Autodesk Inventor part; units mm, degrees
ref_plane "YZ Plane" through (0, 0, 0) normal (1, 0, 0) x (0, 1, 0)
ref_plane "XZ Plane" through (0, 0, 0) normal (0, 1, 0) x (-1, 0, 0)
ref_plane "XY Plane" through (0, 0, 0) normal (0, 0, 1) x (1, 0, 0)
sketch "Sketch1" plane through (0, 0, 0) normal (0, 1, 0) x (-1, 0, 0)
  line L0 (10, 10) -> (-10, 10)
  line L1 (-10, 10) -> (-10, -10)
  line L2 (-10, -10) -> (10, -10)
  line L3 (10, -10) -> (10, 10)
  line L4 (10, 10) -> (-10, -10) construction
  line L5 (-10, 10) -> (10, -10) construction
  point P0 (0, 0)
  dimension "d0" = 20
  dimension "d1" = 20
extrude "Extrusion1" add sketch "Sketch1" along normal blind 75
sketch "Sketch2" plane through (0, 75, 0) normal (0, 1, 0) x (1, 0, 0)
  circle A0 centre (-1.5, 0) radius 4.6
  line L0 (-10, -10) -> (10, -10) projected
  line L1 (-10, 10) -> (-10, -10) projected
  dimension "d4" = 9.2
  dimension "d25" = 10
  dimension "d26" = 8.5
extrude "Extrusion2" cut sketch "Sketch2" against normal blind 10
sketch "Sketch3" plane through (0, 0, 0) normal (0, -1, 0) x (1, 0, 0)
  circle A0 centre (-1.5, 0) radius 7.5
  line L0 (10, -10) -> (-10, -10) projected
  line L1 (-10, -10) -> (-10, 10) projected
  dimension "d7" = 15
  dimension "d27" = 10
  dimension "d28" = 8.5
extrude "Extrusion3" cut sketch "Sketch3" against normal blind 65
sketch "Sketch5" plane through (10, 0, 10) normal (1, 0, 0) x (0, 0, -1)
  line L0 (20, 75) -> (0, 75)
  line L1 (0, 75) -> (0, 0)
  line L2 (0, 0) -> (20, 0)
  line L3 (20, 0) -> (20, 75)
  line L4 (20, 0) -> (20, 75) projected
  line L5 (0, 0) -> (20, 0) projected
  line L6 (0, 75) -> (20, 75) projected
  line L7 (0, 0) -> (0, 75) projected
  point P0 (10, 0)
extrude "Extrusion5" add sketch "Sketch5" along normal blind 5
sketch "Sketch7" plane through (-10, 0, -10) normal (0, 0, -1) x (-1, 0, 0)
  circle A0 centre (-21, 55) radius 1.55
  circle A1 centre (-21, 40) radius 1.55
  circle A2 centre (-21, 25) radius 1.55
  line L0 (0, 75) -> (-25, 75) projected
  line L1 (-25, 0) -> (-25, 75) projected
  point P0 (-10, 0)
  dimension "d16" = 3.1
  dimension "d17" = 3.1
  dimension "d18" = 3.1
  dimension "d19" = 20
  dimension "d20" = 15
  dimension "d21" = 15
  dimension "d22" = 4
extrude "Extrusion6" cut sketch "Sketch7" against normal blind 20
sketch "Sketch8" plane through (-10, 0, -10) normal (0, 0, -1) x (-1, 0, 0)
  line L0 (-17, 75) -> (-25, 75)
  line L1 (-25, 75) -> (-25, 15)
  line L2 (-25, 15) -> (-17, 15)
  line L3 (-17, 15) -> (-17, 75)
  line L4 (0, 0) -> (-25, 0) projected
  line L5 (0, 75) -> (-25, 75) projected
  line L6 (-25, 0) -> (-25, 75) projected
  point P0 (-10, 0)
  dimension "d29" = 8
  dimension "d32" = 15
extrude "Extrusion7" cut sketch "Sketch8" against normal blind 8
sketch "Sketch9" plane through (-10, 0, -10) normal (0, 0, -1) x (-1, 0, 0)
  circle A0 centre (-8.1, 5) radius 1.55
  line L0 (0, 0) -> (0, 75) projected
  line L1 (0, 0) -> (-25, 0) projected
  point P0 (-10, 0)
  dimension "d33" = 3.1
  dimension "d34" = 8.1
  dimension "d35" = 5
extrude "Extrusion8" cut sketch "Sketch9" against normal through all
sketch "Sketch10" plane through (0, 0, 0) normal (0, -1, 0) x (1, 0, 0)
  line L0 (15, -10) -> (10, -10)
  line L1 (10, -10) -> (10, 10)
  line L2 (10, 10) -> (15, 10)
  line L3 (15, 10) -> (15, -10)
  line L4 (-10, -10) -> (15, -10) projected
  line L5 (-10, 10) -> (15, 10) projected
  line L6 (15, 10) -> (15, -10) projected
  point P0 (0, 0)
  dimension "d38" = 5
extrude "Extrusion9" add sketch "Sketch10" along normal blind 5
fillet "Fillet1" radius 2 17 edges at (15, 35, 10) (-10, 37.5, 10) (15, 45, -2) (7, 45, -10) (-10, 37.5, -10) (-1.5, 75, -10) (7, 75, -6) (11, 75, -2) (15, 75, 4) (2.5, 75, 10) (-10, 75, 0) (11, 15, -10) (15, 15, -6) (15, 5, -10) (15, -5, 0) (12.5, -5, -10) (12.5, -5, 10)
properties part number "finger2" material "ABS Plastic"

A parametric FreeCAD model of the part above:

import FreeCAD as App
import Part
import Sketcher


def edges_at(feature, points):
    """Names of the edges that pass closest to the given points."""
    edges = feature.Shape.Edges
    near = lambda p: min(range(len(edges)), key=lambda i: edges[i].distToShape(Part.Vertex(*p))[0])
    return sorted({f"Edge{near(p) + 1}" for p in points})

doc = App.newDocument("Part")
body = doc.addObject("PartDesign::Body", "Body")

sketch1 = doc.addObject("Sketcher::SketchObject", "Sketch")
body.addObject(sketch1)
sketch1.AttachmentSupport = (doc.XZ_Plane, [""])
sketch1.MapMode = "FlatFace"
sketch1.addGeometry(Part.LineSegment(App.Vector(-10, -10, 0), App.Vector(-10, 10, 0)), False)
sketch1.addGeometry(Part.LineSegment(App.Vector(-10, 10, 0), App.Vector(10, 10, 0)), False)
sketch1.addGeometry(Part.LineSegment(App.Vector(10, 10, 0), App.Vector(10, -10, 0)), False)
sketch1.addGeometry(Part.LineSegment(App.Vector(10, -10, 0), App.Vector(-10, -10, 0)), False)
sketch1.addConstraint(Sketcher.Constraint("Coincident", 0, 2, 1, 1))
sketch1.addConstraint(Sketcher.Constraint("Coincident", 1, 2, 2, 1))
sketch1.addConstraint(Sketcher.Constraint("Coincident", 2, 2, 3, 1))
sketch1.addConstraint(Sketcher.Constraint("Coincident", 3, 2, 0, 1))
sketch1.addConstraint(Sketcher.Constraint("Vertical", 0))
sketch1.addConstraint(Sketcher.Constraint("Horizontal", 1))
sketch1.addConstraint(Sketcher.Constraint("Vertical", 2))
sketch1.addConstraint(Sketcher.Constraint("Horizontal", 3))
sketch1.addConstraint(Sketcher.Constraint("Symmetric", 0, 2, 2, 2, -1, 1))
sketch1.addConstraint(Sketcher.Constraint("Equal", 3, 0))
sketch1.addConstraint(Sketcher.Constraint("DistanceX", 1, 1, 1, 2, 20.0))
pad1 = doc.addObject("PartDesign::Pad", "Pad")
body.addObject(pad1)
pad1.Profile = sketch1
pad1.Length = 75
pad1.Reversed = True

sketch2 = doc.addObject("Sketcher::SketchObject", "Sketch001")
body.addObject(sketch2)
sketch2.AttachmentSupport = (doc.XZ_Plane, [""])
sketch2.MapMode = "FlatFace"
sketch2.AttachmentOffset = App.Placement(App.Vector(0, 0, -75), App.Rotation())
sketch2.addGeometry(Part.Circle(App.Vector(-1.5, 0, 0), App.Vector(0, 0, 1), 4.6), False)
sketch2.addConstraint(Sketcher.Constraint("PointOnObject", 0, 3, -1))
sketch2.addConstraint(Sketcher.Constraint("Diameter", 0, 9.2))
sketch2.addConstraint(Sketcher.Constraint("DistanceX", 0, 3, -1, 1, 1.5))
pocket1 = doc.addObject("PartDesign::Pocket", "Pocket")
body.addObject(pocket1)
pocket1.Profile = sketch2
pocket1.Length = 10
pocket1.Reversed = True

sketch3 = doc.addObject("Sketcher::SketchObject", "Sketch002")
body.addObject(sketch3)
sketch3.AttachmentSupport = (doc.XZ_Plane, [""])
sketch3.MapMode = "FlatFace"
sketch3.addGeometry(Part.Circle(App.Vector(-1.5, 0, 0), App.Vector(0, 0, 1), 7.5), False)
sketch3.addConstraint(Sketcher.Constraint("PointOnObject", 0, 3, -1))
sketch3.addConstraint(Sketcher.Constraint("Diameter", 0, 15.0))
sketch3.addConstraint(Sketcher.Constraint("DistanceX", 0, 3, -1, 1, 1.5))
pocket2 = doc.addObject("PartDesign::Pocket", "Pocket001")
body.addObject(pocket2)
pocket2.Profile = sketch3
pocket2.Length = 65

sketch4 = doc.addObject("Sketcher::SketchObject", "Sketch003")
body.addObject(sketch4)
sketch4.AttachmentSupport = (doc.YZ_Plane, [""])
sketch4.MapMode = "FlatFace"
sketch4.AttachmentOffset = App.Placement(App.Vector(0, 0, 10), App.Rotation())
sketch4.addGeometry(Part.LineSegment(App.Vector(0, -10, 0), App.Vector(75, -10, 0)), False)
sketch4.addGeometry(Part.LineSegment(App.Vector(75, -10, 0), App.Vector(75, 10, 0)), False)
sketch4.addGeometry(Part.LineSegment(App.Vector(75, 10, 0), App.Vector(0, 10, 0)), False)
sketch4.addGeometry(Part.LineSegment(App.Vector(0, 10, 0), App.Vector(0, -10, 0)), False)
sketch4.addConstraint(Sketcher.Constraint("Coincident", 0, 2, 1, 1))
sketch4.addConstraint(Sketcher.Constraint("Coincident", 1, 2, 2, 1))
sketch4.addConstraint(Sketcher.Constraint("Coincident", 2, 2, 3, 1))
sketch4.addConstraint(Sketcher.Constraint("Coincident", 3, 2, 0, 1))
sketch4.addConstraint(Sketcher.Constraint("Horizontal", 0))
sketch4.addConstraint(Sketcher.Constraint("Vertical", 1))
sketch4.addConstraint(Sketcher.Constraint("Horizontal", 2))
sketch4.addConstraint(Sketcher.Constraint("Vertical", 3))
sketch4.addConstraint(Sketcher.Constraint("Symmetric", 2, 2, 3, 2, -1, 1))
sketch4.addConstraint(Sketcher.Constraint("DistanceX", 0, 1, 0, 2, 75.0))
sketch4.addConstraint(Sketcher.Constraint("DistanceY", 1, 1, 1, 2, 20.0))
pad2 = doc.addObject("PartDesign::Pad", "Pad001")
body.addObject(pad2)
pad2.Profile = sketch4
pad2.Length = 5

sketch5 = doc.addObject("Sketcher::SketchObject", "Sketch004")
body.addObject(sketch5)
sketch5.AttachmentSupport = (doc.XY_Plane, [""])
sketch5.MapMode = "FlatFace"
sketch5.AttachmentOffset = App.Placement(App.Vector(0, 0, -10), App.Rotation())
sketch5.addGeometry(Part.Circle(App.Vector(11, 55, 0), App.Vector(0, 0, 1), 1.55), False)
sketch5.addGeometry(Part.Circle(App.Vector(11, 40, 0), App.Vector(0, 0, 1), 1.55), False)
sketch5.addGeometry(Part.Circle(App.Vector(11, 25, 0), App.Vector(0, 0, 1), 1.55), False)
sketch5.addConstraint(Sketcher.Constraint("Equal", 0, 1))
sketch5.addConstraint(Sketcher.Constraint("Equal", 1, 2))
sketch5.addConstraint(Sketcher.Constraint("Vertical", 0, 3, 1, 3))
sketch5.addConstraint(Sketcher.Constraint("Vertical", 1, 3, 2, 3))
sketch5.addConstraint(Sketcher.Constraint("Diameter", 0, 3.1))
sketch5.addConstraint(Sketcher.Constraint("DistanceY", 1, 3, 0, 3, 15.0))
sketch5.addConstraint(Sketcher.Constraint("DistanceY", 2, 3, 1, 3, 15.0))
sketch5.addConstraint(Sketcher.Constraint("DistanceX", -1, 1, 0, 3, 11.0))
sketch5.addConstraint(Sketcher.Constraint("DistanceY", -1, 1, 0, 3, 55.0))
pocket3 = doc.addObject("PartDesign::Pocket", "Pocket002")
body.addObject(pocket3)
pocket3.Profile = sketch5
pocket3.Length = 20
pocket3.Reversed = True

sketch6 = doc.addObject("Sketcher::SketchObject", "Sketch005")
body.addObject(sketch6)
sketch6.AttachmentSupport = (doc.XY_Plane, [""])
sketch6.MapMode = "FlatFace"
sketch6.AttachmentOffset = App.Placement(App.Vector(0, 0, -10), App.Rotation())
sketch6.addGeometry(Part.LineSegment(App.Vector(7, 15, 0), App.Vector(7, 75, 0)), False)
sketch6.addGeometry(Part.LineSegment(App.Vector(7, 75, 0), App.Vector(15, 75, 0)), False)
sketch6.addGeometry(Part.LineSegment(App.Vector(15, 75, 0), App.Vector(15, 15, 0)), False)
sketch6.addGeometry(Part.LineSegment(App.Vector(15, 15, 0), App.Vector(7, 15, 0)), False)
sketch6.addConstraint(Sketcher.Constraint("Coincident", 0, 2, 1, 1))
sketch6.addConstraint(Sketcher.Constraint("Coincident", 1, 2, 2, 1))
sketch6.addConstraint(Sketcher.Constraint("Coincident", 2, 2, 3, 1))
sketch6.addConstraint(Sketcher.Constraint("Coincident", 3, 2, 0, 1))
sketch6.addConstraint(Sketcher.Constraint("Vertical", 0))
sketch6.addConstraint(Sketcher.Constraint("Horizontal", 1))
sketch6.addConstraint(Sketcher.Constraint("Vertical", 2))
sketch6.addConstraint(Sketcher.Constraint("Horizontal", 3))
sketch6.addConstraint(Sketcher.Constraint("DistanceX", 1, 1, 1, 2, 8.0))
sketch6.addConstraint(Sketcher.Constraint("DistanceX", -1, 1, 1, 2, 15.0))
sketch6.addConstraint(Sketcher.Constraint("DistanceY", -1, 1, 2, 2, 15.0))
sketch6.addConstraint(Sketcher.Constraint("DistanceY", 0, 1, 0, 2, 60.0))
pocket4 = doc.addObject("PartDesign::Pocket", "Pocket003")
body.addObject(pocket4)
pocket4.Profile = sketch6
pocket4.Length = 8
pocket4.Reversed = True

sketch7 = doc.addObject("Sketcher::SketchObject", "Sketch006")
body.addObject(sketch7)
sketch7.AttachmentSupport = (doc.XY_Plane, [""])
sketch7.MapMode = "FlatFace"
sketch7.AttachmentOffset = App.Placement(App.Vector(0, 0, -10), App.Rotation())
sketch7.addGeometry(Part.Circle(App.Vector(-1.9, 5, 0), App.Vector(0, 0, 1), 1.55), False)
sketch7.addConstraint(Sketcher.Constraint("Diameter", 0, 3.1))
sketch7.addConstraint(Sketcher.Constraint("DistanceY", -1, 1, 0, 3, 5.0))
sketch7.addConstraint(Sketcher.Constraint("DistanceX", 0, 3, -1, 1, 1.9))
pocket5 = doc.addObject("PartDesign::Pocket", "Pocket004")
body.addObject(pocket5)
pocket5.Profile = sketch7
pocket5.Type = "ThroughAll"
pocket5.Reversed = True

sketch8 = doc.addObject("Sketcher::SketchObject", "Sketch007")
body.addObject(sketch8)
sketch8.AttachmentSupport = (doc.XZ_Plane, [""])
sketch8.MapMode = "FlatFace"
sketch8.addGeometry(Part.LineSegment(App.Vector(10, -10, 0), App.Vector(15, -10, 0)), False)
sketch8.addGeometry(Part.LineSegment(App.Vector(15, -10, 0), App.Vector(15, 10, 0)), False)
sketch8.addGeometry(Part.LineSegment(App.Vector(15, 10, 0), App.Vector(10, 10, 0)), False)
sketch8.addGeometry(Part.LineSegment(App.Vector(10, 10, 0), App.Vector(10, -10, 0)), False)
sketch8.addConstraint(Sketcher.Constraint("Coincident", 0, 2, 1, 1))
sketch8.addConstraint(Sketcher.Constraint("Coincident", 1, 2, 2, 1))
sketch8.addConstraint(Sketcher.Constraint("Coincident", 2, 2, 3, 1))
sketch8.addConstraint(Sketcher.Constraint("Coincident", 3, 2, 0, 1))
sketch8.addConstraint(Sketcher.Constraint("Horizontal", 0))
sketch8.addConstraint(Sketcher.Constraint("Vertical", 1))
sketch8.addConstraint(Sketcher.Constraint("Horizontal", 2))
sketch8.addConstraint(Sketcher.Constraint("Vertical", 3))
sketch8.addConstraint(Sketcher.Constraint("DistanceX", 0, 1, 0, 2, 5.0))
sketch8.addConstraint(Sketcher.Constraint("DistanceY", 1, 1, 1, 2, 20.0))
sketch8.addConstraint(Sketcher.Constraint("DistanceX", -1, 1, 0, 2, 15.0))
sketch8.addConstraint(Sketcher.Constraint("DistanceY", 0, 2, -1, 1, 10.0))
pad3 = doc.addObject("PartDesign::Pad", "Pad002")
body.addObject(pad3)
pad3.Profile = sketch8
pad3.Length = 5
doc.recompute()

fillet = doc.addObject("PartDesign::Fillet", "Fillet")
body.addObject(fillet)
fillet.Base = (pad3, edges_at(pad3, [
    (15, 35, 10),
    (-10, 37.5, 10),
    (15, 45, -2),
    (7, 45, -10),
    (-10, 37.5, -10),
    (-1.5, 75, -10),
    (7, 75, -6),
    (11, 75, -2),
    (15, 75, 4),
    (2.5, 75, 10),
    (-10, 75, 0),
    (11, 15, -10),
    (15, 15, -6),
    (15, 5, -10),
    (15, -5, 0),
    (12.5, -5, -10),
    (12.5, -5, 10),
]))
fillet.Radius = 2

doc.recompute()
